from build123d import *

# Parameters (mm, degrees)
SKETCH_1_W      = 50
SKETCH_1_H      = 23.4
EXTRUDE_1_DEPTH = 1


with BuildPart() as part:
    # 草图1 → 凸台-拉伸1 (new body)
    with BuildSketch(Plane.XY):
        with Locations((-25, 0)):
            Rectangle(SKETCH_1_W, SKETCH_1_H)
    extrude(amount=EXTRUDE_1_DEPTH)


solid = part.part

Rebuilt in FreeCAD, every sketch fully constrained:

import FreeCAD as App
import Part
import Sketcher
from FreeCAD import Vector
Q = App.Units.Quantity

doc = App.newDocument("Part")
params = doc.addObject("Spreadsheet::Sheet", "Params")
for row, (alias, value) in enumerate([
    ("sketch1_width", "50 mm"),
    ("sketch1_height", "23.4 mm"),
    ("pad1_length", "1 mm"),
], start=1):
    params.set(f"A{row}", alias)
    params.set(f"B{row}", "=" + value)
    params.setAlias(f"B{row}", alias)

body = doc.addObject("PartDesign::Body", "Body")

# Sketch on XY plane
sketch1 = doc.addObject("Sketcher::SketchObject", "Sketch")
body.addObject(sketch1)
sketch1.AttachmentSupport = (doc.XY_Plane, [""])
sketch1.MapMode = "FlatFace"
sketch1.addGeometry([
    Part.LineSegment(Vector(-50, 11.7, 0), Vector(-50, -11.7, 0)),
    Part.LineSegment(Vector(-50, -11.7, 0), Vector(0, -11.7, 0)),
    Part.LineSegment(Vector(0, -11.7, 0), Vector(0, 11.7, 0)),
    Part.LineSegment(Vector(0, 11.7, 0), Vector(-50, 11.7, 0)),
], False)
sketch1.addConstraint([
    Sketcher.Constraint("Coincident", 0, 2, 1, 1),
    Sketcher.Constraint("Coincident", 1, 2, 2, 1),
    Sketcher.Constraint("Coincident", 2, 2, 3, 1),
    Sketcher.Constraint("Coincident", 3, 2, 0, 1),
    Sketcher.Constraint("Vertical", 0),
    Sketcher.Constraint("Horizontal", 1),
    Sketcher.Constraint("Vertical", 2),
    Sketcher.Constraint("Horizontal", 3),
    Sketcher.Constraint("Symmetric", 1, 2, 2, 2, -1, 1),
    Sketcher.Constraint("DistanceX", 1, 1, 1, 2, Q("50 mm")),
    Sketcher.Constraint("DistanceY", 0, 2, 0, 1, Q("23.4 mm")),
])
sketch1.setExpression("Constraints[9]", "Params.sketch1_width")
sketch1.setExpression("Constraints[10]", "Params.sketch1_height")
pad1 = doc.addObject("PartDesign::Pad", "Pad")
body.addObject(pad1)
pad1.Profile = sketch1
pad1.setExpression("Length", "Params.pad1_length")

doc.recompute()
